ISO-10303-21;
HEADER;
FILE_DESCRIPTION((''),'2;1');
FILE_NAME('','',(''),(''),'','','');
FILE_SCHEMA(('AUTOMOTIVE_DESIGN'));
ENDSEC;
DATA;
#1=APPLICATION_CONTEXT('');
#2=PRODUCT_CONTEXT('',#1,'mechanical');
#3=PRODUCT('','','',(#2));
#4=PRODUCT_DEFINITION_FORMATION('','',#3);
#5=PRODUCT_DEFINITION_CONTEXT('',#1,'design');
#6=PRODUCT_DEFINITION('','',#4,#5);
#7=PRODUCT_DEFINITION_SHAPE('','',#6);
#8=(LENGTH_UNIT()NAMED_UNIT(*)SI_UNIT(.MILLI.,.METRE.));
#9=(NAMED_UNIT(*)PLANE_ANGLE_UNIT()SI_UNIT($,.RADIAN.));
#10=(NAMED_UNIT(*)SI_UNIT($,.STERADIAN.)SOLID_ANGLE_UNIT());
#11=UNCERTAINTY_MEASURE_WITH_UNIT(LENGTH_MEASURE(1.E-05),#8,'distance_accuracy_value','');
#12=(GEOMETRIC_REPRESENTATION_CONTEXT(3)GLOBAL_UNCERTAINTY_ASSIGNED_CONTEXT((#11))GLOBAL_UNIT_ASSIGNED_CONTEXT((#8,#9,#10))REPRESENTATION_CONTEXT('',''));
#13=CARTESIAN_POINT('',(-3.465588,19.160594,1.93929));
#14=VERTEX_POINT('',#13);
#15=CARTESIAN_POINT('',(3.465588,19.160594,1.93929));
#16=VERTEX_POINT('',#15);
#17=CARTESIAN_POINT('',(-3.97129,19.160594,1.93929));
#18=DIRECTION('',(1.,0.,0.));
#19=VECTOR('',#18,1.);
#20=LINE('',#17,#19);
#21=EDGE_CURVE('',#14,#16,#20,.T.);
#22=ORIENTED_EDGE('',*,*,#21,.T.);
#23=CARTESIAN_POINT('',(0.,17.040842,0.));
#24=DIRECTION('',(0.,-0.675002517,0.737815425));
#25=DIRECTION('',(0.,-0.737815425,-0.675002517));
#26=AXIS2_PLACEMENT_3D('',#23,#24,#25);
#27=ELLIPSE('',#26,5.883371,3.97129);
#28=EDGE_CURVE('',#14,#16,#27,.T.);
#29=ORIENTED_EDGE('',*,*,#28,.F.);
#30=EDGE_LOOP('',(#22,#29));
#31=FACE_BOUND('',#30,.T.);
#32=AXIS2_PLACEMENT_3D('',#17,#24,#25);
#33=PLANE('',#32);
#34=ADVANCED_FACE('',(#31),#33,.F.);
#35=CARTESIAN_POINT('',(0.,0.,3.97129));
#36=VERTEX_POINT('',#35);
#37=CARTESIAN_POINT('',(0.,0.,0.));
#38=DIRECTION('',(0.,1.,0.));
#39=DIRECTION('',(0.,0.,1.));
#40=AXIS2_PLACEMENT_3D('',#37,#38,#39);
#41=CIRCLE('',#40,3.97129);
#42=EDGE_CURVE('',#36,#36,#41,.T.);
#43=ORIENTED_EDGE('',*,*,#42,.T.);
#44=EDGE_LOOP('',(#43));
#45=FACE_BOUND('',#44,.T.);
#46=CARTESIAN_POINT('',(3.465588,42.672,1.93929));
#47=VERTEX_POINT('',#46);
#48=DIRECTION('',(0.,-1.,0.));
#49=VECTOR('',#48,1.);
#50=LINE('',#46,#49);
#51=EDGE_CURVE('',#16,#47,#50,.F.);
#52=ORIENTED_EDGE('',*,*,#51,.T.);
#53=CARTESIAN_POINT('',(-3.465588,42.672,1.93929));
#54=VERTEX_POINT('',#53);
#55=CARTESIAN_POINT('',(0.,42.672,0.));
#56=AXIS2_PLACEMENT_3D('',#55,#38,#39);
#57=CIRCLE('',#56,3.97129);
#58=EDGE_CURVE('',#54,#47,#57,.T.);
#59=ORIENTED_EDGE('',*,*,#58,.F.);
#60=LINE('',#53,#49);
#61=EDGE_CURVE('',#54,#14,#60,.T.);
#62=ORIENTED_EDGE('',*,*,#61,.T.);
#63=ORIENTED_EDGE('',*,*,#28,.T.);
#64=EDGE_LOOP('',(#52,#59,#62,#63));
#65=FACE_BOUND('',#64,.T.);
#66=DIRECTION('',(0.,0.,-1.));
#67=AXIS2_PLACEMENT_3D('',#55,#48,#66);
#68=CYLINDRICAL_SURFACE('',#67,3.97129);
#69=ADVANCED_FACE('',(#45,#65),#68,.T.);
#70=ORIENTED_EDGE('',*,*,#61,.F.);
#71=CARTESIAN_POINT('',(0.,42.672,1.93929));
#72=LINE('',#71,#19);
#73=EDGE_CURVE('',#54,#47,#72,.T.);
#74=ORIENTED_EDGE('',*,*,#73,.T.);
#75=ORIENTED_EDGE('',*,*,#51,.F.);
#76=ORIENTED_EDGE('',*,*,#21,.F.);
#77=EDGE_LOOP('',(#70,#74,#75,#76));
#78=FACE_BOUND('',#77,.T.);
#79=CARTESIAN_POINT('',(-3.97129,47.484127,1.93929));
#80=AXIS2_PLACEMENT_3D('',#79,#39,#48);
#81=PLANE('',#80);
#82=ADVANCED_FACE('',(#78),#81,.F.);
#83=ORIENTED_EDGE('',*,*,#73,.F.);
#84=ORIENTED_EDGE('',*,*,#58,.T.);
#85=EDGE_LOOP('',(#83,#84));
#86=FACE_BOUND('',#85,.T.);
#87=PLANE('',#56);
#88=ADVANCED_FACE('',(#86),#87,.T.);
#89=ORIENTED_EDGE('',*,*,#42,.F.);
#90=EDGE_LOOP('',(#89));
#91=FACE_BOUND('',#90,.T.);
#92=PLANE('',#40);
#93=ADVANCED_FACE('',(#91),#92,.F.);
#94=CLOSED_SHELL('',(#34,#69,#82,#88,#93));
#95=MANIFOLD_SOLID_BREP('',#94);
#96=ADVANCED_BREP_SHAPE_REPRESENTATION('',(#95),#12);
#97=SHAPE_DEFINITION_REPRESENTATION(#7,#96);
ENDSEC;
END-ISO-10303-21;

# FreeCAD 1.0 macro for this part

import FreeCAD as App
import Part
import Sketcher

V = App.Vector
Q = App.Units.Quantity

doc = App.newDocument("Part")
body = doc.addObject("PartDesign::Body", "Body")

# Sketch on XZ plane
sketch1 = body.newObject("Sketcher::SketchObject", "Sketch")
sketch1.AttachmentSupport = (doc.getObject("XZ_Plane"), [""])
sketch1.MapMode = "FlatFace"
sketch1.addGeometry(Part.Circle(V(0, 0, 0), V(0, 0, 1), 4), False)
sketch1.addConstraint(Sketcher.Constraint("Coincident", 0, 3, -1, 1))
sketch1.addConstraint(Sketcher.Constraint("Diameter", 0, Q("0.3127 in")))
pad1 = body.newObject("PartDesign::Pad", "Pad")
pad1.Profile = sketch1
pad1.Length = Q("1.68 in")
pad1.Reversed = True

# Sketch on YZ plane
sketch2 = body.newObject("Sketcher::SketchObject", "Sketch001")
sketch2.AttachmentSupport = (doc.getObject("YZ_Plane"), [""])
sketch2.MapMode = "FlatFace"
sketch2.addGeometry(Part.LineSegment(V(47, 2, 0), V(19, 2, 0)), False)
sketch2.addGeometry(Part.LineSegment(V(19, 2, 0), V(13, -4, 0)), False)
sketch2.addGeometry(Part.LineSegment(V(13, -4, 0), V(47, -4, 0)), False)
sketch2.addGeometry(Part.LineSegment(V(47, -4, 0), V(47, 2, 0)), False)
sketch2.addConstraint(Sketcher.Constraint("Coincident", 0, 2, 1, 1))
sketch2.addConstraint(Sketcher.Constraint("Coincident", 1, 2, 2, 1))
sketch2.addConstraint(Sketcher.Constraint("Coincident", 2, 2, 3, 1))
sketch2.addConstraint(Sketcher.Constraint("Coincident", 3, 2, 0, 1))
sketch2.addConstraint(Sketcher.Constraint("Horizontal", 0))
sketch2.addConstraint(Sketcher.Constraint("Horizontal", 2))
sketch2.addConstraint(Sketcher.Constraint("Vertical", 3))
sketch2.addConstraint(Sketcher.Constraint("DistanceX", -1, 1, 1, 2, Q("0.5 in")))
sketch2.addConstraint(Sketcher.Constraint("DistanceY", 3, 1, 3, 2, Q("0.2327 in")))
sketch2.addConstraint(Sketcher.Constraint("DistanceX", 0, 2, 0, 1, Q("28.323533 mm")))
sketch2.addConstraint(Sketcher.Constraint("DistanceX", 2, 1, 2, 2, Q("34.784127 mm")))
sketch2.addConstraint(Sketcher.Constraint("DistanceY", -1, 1, 0, 2, Q("1.93929 mm")))
pocket1 = body.newObject("PartDesign::Pocket", "Pocket")
pocket1.Profile = sketch2
pocket1.Type = "ThroughAll"
pocket1.Midplane = True

doc.recompute()
